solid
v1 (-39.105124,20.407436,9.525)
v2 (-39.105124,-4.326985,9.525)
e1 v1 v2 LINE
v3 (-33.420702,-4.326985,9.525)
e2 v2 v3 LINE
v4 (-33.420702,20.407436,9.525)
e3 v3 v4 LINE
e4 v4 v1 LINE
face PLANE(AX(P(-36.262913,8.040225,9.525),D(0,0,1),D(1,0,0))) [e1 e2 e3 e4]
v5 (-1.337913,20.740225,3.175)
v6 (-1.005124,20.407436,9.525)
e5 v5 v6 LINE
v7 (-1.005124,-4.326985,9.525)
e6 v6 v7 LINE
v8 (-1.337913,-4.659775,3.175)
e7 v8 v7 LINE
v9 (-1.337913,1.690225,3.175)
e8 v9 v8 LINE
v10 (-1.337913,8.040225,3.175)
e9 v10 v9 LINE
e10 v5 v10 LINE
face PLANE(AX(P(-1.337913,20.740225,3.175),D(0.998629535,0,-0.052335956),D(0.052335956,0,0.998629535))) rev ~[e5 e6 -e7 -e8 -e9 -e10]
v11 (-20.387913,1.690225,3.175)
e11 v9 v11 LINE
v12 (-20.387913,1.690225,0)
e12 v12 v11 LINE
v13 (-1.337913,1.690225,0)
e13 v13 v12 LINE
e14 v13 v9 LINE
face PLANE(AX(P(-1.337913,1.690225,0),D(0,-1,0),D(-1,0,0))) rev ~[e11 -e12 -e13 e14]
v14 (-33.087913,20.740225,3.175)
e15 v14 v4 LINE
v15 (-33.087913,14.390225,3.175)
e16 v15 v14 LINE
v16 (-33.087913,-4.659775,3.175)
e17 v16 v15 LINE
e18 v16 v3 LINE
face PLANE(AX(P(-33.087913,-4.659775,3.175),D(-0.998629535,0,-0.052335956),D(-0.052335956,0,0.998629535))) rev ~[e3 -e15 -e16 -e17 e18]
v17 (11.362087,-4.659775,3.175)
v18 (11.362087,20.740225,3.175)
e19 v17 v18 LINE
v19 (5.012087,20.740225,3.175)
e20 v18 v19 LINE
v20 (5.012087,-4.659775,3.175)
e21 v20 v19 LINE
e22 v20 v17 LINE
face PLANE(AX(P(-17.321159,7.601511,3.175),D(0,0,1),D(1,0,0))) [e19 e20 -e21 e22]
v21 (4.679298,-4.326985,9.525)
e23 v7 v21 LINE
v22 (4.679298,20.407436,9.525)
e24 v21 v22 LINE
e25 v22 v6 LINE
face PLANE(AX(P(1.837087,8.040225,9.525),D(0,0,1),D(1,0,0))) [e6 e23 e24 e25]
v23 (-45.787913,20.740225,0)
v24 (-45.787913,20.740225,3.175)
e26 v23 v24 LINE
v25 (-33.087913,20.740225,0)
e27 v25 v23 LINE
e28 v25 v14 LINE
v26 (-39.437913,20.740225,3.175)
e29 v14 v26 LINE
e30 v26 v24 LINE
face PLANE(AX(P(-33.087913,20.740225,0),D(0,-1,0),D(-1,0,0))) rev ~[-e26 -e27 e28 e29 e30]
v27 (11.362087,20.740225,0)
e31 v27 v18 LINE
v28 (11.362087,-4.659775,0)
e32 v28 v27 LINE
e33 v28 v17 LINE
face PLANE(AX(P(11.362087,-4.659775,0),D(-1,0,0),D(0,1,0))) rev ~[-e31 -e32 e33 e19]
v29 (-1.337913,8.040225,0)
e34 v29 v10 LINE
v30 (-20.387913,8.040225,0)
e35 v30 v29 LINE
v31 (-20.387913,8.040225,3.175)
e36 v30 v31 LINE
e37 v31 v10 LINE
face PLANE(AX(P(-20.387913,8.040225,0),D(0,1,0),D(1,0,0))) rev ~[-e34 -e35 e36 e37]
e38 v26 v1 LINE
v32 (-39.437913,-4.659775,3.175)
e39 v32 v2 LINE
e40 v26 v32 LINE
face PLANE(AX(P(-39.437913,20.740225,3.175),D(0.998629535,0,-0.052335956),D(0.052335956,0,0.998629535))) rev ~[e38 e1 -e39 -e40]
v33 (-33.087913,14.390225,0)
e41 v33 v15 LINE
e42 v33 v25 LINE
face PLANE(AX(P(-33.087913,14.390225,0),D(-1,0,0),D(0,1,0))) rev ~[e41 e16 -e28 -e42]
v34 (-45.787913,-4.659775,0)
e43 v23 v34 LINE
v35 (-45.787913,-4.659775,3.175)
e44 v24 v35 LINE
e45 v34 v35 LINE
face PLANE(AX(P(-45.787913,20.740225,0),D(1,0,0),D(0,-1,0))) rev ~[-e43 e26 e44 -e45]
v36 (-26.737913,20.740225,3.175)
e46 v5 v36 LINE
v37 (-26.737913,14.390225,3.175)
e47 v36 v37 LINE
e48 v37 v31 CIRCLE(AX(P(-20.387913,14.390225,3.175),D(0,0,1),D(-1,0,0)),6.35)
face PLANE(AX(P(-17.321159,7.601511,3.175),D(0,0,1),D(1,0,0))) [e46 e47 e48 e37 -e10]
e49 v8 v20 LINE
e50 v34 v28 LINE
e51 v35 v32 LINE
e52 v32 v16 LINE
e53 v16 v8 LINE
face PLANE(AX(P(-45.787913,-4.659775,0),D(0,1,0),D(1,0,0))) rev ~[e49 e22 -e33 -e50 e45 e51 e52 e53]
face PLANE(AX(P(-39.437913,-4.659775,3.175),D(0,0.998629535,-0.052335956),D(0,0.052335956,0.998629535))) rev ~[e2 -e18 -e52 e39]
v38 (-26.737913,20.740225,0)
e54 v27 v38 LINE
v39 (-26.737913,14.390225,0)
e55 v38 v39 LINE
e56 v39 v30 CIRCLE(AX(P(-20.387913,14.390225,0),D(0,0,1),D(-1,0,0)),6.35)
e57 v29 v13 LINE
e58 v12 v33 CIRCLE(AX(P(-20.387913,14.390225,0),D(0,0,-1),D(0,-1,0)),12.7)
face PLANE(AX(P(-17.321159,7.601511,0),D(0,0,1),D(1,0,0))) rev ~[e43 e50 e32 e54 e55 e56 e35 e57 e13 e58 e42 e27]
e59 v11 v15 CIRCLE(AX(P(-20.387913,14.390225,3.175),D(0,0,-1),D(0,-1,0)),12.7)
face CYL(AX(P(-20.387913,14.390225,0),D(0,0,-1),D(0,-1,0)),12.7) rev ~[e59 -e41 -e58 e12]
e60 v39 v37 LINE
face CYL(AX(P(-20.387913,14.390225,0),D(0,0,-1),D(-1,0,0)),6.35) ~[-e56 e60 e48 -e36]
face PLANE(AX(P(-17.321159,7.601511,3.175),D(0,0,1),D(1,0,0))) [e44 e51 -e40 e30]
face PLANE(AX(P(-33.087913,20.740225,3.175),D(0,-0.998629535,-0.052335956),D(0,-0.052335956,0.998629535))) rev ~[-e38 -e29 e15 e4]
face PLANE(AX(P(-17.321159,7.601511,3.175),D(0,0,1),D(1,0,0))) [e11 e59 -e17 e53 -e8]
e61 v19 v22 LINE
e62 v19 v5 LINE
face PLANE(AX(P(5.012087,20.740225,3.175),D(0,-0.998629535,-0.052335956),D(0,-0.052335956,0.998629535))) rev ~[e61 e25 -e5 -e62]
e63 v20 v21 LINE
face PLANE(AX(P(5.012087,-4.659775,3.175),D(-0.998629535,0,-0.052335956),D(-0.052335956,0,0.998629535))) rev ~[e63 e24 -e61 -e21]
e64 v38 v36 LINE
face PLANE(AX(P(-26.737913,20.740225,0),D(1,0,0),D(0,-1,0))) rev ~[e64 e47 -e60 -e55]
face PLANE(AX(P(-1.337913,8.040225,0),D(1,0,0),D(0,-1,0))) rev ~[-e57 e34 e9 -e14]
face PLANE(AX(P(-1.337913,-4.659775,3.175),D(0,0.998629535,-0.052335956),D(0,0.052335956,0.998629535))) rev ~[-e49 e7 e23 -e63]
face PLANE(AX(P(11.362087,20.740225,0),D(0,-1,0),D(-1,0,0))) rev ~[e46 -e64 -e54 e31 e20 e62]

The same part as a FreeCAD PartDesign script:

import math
import FreeCAD as App
import Part
import Sketcher
from FreeCAD import Vector
Q = App.Units.Quantity


def add_polygon(sketch, points):
    """Adds a closed chain of lines whose ends are joined by coincident constraints."""
    first, n = sketch.GeometryCount, len(points)
    for a, b in zip(points, points[1:] + points[:1]):
        sketch.addGeometry(Part.LineSegment(App.Vector(*a, 0), App.Vector(*b, 0)), False)
    for i in range(n):
        sketch.addConstraint(Sketcher.Constraint("Coincident", first + i, 2, first + (i + 1) % n, 1))

doc = App.newDocument("Part")
body = doc.addObject("PartDesign::Body", "Body")

sketch1 = doc.addObject("Sketcher::SketchObject", "Sketch")
body.addObject(sketch1)
sketch1.AttachmentSupport = (doc.XY_Plane, [""])
sketch1.MapMode = "FlatFace"
sketch1.addGeometry([
    Part.LineSegment(Vector(-45.787913, 20.740225, 0), Vector(-45.787913, -4.659775, 0)),
    Part.LineSegment(Vector(-45.787913, -4.659775, 0), Vector(11.362087, -4.659775, 0)),
    Part.LineSegment(Vector(11.362087, -4.659775, 0), Vector(11.362087, 20.740225, 0)),
    Part.LineSegment(Vector(11.362087, 20.740225, 0), Vector(-26.737913, 20.740225, 0)),
    Part.LineSegment(Vector(-26.737913, 20.740225, 0), Vector(-26.737913, 14.390225, 0)),
    Part.ArcOfCircle(Part.Circle(Vector(-20.387913, 14.390225, 0), Vector(0, 0, 1), 6.35), math.radians(180), math.radians(270)),
    Part.LineSegment(Vector(-20.387913, 8.040225, 0), Vector(-1.337913, 8.040225, 0)),
    Part.LineSegment(Vector(-1.337913, 8.040225, 0), Vector(-1.337913, 1.690225, 0)),
    Part.LineSegment(Vector(-1.337913, 1.690225, 0), Vector(-20.387913, 1.690225, 0)),
    Part.ArcOfCircle(Part.Circle(Vector(-20.387913, 14.390225, 0), Vector(0, 0, 1), 12.7), math.radians(180), math.radians(270)),
    Part.LineSegment(Vector(-33.087913, 14.390225, 0), Vector(-33.087913, 20.740225, 0)),
    Part.LineSegment(Vector(-33.087913, 20.740225, 0), Vector(-45.787913, 20.740225, 0)),
], False)
sketch1.addConstraint([
    Sketcher.Constraint("Coincident", 0, 2, 1, 1),
    Sketcher.Constraint("Coincident", 1, 2, 2, 1),
    Sketcher.Constraint("Coincident", 2, 2, 3, 1),
    Sketcher.Constraint("Coincident", 3, 2, 4, 1),
    Sketcher.Constraint("Tangent", 4, 2, 5, 1),
    Sketcher.Constraint("Tangent", 5, 2, 6, 1),
    Sketcher.Constraint("Coincident", 6, 2, 7, 1),
    Sketcher.Constraint("Coincident", 7, 2, 8, 1),
    Sketcher.Constraint("Tangent", 8, 2, 9, 2),
    Sketcher.Constraint("Tangent", 9, 1, 10, 1),
    Sketcher.Constraint("Coincident", 10, 2, 11, 1),
    Sketcher.Constraint("Coincident", 11, 2, 0, 1),
    Sketcher.Constraint("Vertical", 0),
    Sketcher.Constraint("Horizontal", 1),
    Sketcher.Constraint("Vertical", 2),
    Sketcher.Constraint("Horizontal", 3),
    Sketcher.Constraint("Vertical", 4),
    Sketcher.Constraint("Horizontal", 6),
    Sketcher.Constraint("Vertical", 7),
    Sketcher.Constraint("Horizontal", 8),
    Sketcher.Constraint("Vertical", 10),
    Sketcher.Constraint("Horizontal", 11),
    Sketcher.Constraint("Coincident", 9, 3, 5, 3),
    Sketcher.Constraint("Horizontal", 3, 2, 10, 2),
    Sketcher.Constraint("Equal", 4, 7),
    Sketcher.Constraint("Radius", 9, Q("0.5 in")),
    Sketcher.Constraint("DistanceY", 0, 2, 0, 1, Q("1 in")),
    Sketcher.Constraint("Radius", 5, Q("0.25 in")),
    Sketcher.Constraint("DistanceX", 3, 2, 3, 1, Q("1.5 in")),
    Sketcher.Constraint("DistanceX", 11, 2, 11, 1, Q("0.5 in")),
    Sketcher.Constraint("DistanceX", 6, 1, 6, 2, Q("0.75 in")),
    Sketcher.Constraint("DistanceX", 5, 3, -1, 1, 20.387913),
    Sketcher.Constraint("DistanceY", -1, 1, 5, 3, 14.390225),
])
pad1 = doc.addObject("PartDesign::Pad", "Pad")
body.addObject(pad1)
pad1.Profile = sketch1
pad1.Length = Q("0.125 in")

sketch2 = doc.addObject("Sketcher::SketchObject", "Sketch001")
body.addObject(sketch2)
sketch2.AttachmentSupport = (doc.XY_Plane, [""])
sketch2.MapMode = "FlatFace"
sketch2.AttachmentOffset = App.Placement(Vector(0, 0, 0.125 * 25.4), App.Rotation())
add_polygon(sketch2, [(-33.087913, 20.740225), (-39.437913, 20.740225), (-39.437913, -4.659775), (-33.087913, -4.659775)])
add_polygon(sketch2, [(-1.337913, -4.659775), (5.012087, -4.659775), (5.012087, 20.740225), (-1.337913, 20.740225)])
sketch2.addConstraint([
    Sketcher.Constraint("Horizontal", 0),
    Sketcher.Constraint("Vertical", 1),
    Sketcher.Constraint("Horizontal", 2),
    Sketcher.Constraint("Vertical", 3),
    Sketcher.Constraint("Horizontal", 4),
    Sketcher.Constraint("Vertical", 5),
    Sketcher.Constraint("Horizontal", 6),
    Sketcher.Constraint("Vertical", 7),
    Sketcher.Constraint("Horizontal", 2, 2, 4, 2),
    Sketcher.Constraint("Horizontal", 3, 2, 5, 2),
    Sketcher.Constraint("Equal", 2, 4),
    Sketcher.Constraint("DistanceY", 1, 2, 1, 1, Q("1 in")),
    Sketcher.Constraint("DistanceX", 0, 2, 0, 1, Q("0.25 in")),
    Sketcher.Constraint("DistanceX", 2, 2, 4, 2, Q("1.5 in")),
    Sketcher.Constraint("DistanceX", 0, 2, -1, 1, 39.437913),
    Sketcher.Constraint("DistanceY", -1, 1, 0, 2, 20.740225),
])
pad2 = doc.addObject("PartDesign::Pad", "Pad001")
body.addObject(pad2)
pad2.Profile = sketch2
pad2.Length = Q("0.25 in")
pad2.TaperAngle = -3

doc.recompute()
